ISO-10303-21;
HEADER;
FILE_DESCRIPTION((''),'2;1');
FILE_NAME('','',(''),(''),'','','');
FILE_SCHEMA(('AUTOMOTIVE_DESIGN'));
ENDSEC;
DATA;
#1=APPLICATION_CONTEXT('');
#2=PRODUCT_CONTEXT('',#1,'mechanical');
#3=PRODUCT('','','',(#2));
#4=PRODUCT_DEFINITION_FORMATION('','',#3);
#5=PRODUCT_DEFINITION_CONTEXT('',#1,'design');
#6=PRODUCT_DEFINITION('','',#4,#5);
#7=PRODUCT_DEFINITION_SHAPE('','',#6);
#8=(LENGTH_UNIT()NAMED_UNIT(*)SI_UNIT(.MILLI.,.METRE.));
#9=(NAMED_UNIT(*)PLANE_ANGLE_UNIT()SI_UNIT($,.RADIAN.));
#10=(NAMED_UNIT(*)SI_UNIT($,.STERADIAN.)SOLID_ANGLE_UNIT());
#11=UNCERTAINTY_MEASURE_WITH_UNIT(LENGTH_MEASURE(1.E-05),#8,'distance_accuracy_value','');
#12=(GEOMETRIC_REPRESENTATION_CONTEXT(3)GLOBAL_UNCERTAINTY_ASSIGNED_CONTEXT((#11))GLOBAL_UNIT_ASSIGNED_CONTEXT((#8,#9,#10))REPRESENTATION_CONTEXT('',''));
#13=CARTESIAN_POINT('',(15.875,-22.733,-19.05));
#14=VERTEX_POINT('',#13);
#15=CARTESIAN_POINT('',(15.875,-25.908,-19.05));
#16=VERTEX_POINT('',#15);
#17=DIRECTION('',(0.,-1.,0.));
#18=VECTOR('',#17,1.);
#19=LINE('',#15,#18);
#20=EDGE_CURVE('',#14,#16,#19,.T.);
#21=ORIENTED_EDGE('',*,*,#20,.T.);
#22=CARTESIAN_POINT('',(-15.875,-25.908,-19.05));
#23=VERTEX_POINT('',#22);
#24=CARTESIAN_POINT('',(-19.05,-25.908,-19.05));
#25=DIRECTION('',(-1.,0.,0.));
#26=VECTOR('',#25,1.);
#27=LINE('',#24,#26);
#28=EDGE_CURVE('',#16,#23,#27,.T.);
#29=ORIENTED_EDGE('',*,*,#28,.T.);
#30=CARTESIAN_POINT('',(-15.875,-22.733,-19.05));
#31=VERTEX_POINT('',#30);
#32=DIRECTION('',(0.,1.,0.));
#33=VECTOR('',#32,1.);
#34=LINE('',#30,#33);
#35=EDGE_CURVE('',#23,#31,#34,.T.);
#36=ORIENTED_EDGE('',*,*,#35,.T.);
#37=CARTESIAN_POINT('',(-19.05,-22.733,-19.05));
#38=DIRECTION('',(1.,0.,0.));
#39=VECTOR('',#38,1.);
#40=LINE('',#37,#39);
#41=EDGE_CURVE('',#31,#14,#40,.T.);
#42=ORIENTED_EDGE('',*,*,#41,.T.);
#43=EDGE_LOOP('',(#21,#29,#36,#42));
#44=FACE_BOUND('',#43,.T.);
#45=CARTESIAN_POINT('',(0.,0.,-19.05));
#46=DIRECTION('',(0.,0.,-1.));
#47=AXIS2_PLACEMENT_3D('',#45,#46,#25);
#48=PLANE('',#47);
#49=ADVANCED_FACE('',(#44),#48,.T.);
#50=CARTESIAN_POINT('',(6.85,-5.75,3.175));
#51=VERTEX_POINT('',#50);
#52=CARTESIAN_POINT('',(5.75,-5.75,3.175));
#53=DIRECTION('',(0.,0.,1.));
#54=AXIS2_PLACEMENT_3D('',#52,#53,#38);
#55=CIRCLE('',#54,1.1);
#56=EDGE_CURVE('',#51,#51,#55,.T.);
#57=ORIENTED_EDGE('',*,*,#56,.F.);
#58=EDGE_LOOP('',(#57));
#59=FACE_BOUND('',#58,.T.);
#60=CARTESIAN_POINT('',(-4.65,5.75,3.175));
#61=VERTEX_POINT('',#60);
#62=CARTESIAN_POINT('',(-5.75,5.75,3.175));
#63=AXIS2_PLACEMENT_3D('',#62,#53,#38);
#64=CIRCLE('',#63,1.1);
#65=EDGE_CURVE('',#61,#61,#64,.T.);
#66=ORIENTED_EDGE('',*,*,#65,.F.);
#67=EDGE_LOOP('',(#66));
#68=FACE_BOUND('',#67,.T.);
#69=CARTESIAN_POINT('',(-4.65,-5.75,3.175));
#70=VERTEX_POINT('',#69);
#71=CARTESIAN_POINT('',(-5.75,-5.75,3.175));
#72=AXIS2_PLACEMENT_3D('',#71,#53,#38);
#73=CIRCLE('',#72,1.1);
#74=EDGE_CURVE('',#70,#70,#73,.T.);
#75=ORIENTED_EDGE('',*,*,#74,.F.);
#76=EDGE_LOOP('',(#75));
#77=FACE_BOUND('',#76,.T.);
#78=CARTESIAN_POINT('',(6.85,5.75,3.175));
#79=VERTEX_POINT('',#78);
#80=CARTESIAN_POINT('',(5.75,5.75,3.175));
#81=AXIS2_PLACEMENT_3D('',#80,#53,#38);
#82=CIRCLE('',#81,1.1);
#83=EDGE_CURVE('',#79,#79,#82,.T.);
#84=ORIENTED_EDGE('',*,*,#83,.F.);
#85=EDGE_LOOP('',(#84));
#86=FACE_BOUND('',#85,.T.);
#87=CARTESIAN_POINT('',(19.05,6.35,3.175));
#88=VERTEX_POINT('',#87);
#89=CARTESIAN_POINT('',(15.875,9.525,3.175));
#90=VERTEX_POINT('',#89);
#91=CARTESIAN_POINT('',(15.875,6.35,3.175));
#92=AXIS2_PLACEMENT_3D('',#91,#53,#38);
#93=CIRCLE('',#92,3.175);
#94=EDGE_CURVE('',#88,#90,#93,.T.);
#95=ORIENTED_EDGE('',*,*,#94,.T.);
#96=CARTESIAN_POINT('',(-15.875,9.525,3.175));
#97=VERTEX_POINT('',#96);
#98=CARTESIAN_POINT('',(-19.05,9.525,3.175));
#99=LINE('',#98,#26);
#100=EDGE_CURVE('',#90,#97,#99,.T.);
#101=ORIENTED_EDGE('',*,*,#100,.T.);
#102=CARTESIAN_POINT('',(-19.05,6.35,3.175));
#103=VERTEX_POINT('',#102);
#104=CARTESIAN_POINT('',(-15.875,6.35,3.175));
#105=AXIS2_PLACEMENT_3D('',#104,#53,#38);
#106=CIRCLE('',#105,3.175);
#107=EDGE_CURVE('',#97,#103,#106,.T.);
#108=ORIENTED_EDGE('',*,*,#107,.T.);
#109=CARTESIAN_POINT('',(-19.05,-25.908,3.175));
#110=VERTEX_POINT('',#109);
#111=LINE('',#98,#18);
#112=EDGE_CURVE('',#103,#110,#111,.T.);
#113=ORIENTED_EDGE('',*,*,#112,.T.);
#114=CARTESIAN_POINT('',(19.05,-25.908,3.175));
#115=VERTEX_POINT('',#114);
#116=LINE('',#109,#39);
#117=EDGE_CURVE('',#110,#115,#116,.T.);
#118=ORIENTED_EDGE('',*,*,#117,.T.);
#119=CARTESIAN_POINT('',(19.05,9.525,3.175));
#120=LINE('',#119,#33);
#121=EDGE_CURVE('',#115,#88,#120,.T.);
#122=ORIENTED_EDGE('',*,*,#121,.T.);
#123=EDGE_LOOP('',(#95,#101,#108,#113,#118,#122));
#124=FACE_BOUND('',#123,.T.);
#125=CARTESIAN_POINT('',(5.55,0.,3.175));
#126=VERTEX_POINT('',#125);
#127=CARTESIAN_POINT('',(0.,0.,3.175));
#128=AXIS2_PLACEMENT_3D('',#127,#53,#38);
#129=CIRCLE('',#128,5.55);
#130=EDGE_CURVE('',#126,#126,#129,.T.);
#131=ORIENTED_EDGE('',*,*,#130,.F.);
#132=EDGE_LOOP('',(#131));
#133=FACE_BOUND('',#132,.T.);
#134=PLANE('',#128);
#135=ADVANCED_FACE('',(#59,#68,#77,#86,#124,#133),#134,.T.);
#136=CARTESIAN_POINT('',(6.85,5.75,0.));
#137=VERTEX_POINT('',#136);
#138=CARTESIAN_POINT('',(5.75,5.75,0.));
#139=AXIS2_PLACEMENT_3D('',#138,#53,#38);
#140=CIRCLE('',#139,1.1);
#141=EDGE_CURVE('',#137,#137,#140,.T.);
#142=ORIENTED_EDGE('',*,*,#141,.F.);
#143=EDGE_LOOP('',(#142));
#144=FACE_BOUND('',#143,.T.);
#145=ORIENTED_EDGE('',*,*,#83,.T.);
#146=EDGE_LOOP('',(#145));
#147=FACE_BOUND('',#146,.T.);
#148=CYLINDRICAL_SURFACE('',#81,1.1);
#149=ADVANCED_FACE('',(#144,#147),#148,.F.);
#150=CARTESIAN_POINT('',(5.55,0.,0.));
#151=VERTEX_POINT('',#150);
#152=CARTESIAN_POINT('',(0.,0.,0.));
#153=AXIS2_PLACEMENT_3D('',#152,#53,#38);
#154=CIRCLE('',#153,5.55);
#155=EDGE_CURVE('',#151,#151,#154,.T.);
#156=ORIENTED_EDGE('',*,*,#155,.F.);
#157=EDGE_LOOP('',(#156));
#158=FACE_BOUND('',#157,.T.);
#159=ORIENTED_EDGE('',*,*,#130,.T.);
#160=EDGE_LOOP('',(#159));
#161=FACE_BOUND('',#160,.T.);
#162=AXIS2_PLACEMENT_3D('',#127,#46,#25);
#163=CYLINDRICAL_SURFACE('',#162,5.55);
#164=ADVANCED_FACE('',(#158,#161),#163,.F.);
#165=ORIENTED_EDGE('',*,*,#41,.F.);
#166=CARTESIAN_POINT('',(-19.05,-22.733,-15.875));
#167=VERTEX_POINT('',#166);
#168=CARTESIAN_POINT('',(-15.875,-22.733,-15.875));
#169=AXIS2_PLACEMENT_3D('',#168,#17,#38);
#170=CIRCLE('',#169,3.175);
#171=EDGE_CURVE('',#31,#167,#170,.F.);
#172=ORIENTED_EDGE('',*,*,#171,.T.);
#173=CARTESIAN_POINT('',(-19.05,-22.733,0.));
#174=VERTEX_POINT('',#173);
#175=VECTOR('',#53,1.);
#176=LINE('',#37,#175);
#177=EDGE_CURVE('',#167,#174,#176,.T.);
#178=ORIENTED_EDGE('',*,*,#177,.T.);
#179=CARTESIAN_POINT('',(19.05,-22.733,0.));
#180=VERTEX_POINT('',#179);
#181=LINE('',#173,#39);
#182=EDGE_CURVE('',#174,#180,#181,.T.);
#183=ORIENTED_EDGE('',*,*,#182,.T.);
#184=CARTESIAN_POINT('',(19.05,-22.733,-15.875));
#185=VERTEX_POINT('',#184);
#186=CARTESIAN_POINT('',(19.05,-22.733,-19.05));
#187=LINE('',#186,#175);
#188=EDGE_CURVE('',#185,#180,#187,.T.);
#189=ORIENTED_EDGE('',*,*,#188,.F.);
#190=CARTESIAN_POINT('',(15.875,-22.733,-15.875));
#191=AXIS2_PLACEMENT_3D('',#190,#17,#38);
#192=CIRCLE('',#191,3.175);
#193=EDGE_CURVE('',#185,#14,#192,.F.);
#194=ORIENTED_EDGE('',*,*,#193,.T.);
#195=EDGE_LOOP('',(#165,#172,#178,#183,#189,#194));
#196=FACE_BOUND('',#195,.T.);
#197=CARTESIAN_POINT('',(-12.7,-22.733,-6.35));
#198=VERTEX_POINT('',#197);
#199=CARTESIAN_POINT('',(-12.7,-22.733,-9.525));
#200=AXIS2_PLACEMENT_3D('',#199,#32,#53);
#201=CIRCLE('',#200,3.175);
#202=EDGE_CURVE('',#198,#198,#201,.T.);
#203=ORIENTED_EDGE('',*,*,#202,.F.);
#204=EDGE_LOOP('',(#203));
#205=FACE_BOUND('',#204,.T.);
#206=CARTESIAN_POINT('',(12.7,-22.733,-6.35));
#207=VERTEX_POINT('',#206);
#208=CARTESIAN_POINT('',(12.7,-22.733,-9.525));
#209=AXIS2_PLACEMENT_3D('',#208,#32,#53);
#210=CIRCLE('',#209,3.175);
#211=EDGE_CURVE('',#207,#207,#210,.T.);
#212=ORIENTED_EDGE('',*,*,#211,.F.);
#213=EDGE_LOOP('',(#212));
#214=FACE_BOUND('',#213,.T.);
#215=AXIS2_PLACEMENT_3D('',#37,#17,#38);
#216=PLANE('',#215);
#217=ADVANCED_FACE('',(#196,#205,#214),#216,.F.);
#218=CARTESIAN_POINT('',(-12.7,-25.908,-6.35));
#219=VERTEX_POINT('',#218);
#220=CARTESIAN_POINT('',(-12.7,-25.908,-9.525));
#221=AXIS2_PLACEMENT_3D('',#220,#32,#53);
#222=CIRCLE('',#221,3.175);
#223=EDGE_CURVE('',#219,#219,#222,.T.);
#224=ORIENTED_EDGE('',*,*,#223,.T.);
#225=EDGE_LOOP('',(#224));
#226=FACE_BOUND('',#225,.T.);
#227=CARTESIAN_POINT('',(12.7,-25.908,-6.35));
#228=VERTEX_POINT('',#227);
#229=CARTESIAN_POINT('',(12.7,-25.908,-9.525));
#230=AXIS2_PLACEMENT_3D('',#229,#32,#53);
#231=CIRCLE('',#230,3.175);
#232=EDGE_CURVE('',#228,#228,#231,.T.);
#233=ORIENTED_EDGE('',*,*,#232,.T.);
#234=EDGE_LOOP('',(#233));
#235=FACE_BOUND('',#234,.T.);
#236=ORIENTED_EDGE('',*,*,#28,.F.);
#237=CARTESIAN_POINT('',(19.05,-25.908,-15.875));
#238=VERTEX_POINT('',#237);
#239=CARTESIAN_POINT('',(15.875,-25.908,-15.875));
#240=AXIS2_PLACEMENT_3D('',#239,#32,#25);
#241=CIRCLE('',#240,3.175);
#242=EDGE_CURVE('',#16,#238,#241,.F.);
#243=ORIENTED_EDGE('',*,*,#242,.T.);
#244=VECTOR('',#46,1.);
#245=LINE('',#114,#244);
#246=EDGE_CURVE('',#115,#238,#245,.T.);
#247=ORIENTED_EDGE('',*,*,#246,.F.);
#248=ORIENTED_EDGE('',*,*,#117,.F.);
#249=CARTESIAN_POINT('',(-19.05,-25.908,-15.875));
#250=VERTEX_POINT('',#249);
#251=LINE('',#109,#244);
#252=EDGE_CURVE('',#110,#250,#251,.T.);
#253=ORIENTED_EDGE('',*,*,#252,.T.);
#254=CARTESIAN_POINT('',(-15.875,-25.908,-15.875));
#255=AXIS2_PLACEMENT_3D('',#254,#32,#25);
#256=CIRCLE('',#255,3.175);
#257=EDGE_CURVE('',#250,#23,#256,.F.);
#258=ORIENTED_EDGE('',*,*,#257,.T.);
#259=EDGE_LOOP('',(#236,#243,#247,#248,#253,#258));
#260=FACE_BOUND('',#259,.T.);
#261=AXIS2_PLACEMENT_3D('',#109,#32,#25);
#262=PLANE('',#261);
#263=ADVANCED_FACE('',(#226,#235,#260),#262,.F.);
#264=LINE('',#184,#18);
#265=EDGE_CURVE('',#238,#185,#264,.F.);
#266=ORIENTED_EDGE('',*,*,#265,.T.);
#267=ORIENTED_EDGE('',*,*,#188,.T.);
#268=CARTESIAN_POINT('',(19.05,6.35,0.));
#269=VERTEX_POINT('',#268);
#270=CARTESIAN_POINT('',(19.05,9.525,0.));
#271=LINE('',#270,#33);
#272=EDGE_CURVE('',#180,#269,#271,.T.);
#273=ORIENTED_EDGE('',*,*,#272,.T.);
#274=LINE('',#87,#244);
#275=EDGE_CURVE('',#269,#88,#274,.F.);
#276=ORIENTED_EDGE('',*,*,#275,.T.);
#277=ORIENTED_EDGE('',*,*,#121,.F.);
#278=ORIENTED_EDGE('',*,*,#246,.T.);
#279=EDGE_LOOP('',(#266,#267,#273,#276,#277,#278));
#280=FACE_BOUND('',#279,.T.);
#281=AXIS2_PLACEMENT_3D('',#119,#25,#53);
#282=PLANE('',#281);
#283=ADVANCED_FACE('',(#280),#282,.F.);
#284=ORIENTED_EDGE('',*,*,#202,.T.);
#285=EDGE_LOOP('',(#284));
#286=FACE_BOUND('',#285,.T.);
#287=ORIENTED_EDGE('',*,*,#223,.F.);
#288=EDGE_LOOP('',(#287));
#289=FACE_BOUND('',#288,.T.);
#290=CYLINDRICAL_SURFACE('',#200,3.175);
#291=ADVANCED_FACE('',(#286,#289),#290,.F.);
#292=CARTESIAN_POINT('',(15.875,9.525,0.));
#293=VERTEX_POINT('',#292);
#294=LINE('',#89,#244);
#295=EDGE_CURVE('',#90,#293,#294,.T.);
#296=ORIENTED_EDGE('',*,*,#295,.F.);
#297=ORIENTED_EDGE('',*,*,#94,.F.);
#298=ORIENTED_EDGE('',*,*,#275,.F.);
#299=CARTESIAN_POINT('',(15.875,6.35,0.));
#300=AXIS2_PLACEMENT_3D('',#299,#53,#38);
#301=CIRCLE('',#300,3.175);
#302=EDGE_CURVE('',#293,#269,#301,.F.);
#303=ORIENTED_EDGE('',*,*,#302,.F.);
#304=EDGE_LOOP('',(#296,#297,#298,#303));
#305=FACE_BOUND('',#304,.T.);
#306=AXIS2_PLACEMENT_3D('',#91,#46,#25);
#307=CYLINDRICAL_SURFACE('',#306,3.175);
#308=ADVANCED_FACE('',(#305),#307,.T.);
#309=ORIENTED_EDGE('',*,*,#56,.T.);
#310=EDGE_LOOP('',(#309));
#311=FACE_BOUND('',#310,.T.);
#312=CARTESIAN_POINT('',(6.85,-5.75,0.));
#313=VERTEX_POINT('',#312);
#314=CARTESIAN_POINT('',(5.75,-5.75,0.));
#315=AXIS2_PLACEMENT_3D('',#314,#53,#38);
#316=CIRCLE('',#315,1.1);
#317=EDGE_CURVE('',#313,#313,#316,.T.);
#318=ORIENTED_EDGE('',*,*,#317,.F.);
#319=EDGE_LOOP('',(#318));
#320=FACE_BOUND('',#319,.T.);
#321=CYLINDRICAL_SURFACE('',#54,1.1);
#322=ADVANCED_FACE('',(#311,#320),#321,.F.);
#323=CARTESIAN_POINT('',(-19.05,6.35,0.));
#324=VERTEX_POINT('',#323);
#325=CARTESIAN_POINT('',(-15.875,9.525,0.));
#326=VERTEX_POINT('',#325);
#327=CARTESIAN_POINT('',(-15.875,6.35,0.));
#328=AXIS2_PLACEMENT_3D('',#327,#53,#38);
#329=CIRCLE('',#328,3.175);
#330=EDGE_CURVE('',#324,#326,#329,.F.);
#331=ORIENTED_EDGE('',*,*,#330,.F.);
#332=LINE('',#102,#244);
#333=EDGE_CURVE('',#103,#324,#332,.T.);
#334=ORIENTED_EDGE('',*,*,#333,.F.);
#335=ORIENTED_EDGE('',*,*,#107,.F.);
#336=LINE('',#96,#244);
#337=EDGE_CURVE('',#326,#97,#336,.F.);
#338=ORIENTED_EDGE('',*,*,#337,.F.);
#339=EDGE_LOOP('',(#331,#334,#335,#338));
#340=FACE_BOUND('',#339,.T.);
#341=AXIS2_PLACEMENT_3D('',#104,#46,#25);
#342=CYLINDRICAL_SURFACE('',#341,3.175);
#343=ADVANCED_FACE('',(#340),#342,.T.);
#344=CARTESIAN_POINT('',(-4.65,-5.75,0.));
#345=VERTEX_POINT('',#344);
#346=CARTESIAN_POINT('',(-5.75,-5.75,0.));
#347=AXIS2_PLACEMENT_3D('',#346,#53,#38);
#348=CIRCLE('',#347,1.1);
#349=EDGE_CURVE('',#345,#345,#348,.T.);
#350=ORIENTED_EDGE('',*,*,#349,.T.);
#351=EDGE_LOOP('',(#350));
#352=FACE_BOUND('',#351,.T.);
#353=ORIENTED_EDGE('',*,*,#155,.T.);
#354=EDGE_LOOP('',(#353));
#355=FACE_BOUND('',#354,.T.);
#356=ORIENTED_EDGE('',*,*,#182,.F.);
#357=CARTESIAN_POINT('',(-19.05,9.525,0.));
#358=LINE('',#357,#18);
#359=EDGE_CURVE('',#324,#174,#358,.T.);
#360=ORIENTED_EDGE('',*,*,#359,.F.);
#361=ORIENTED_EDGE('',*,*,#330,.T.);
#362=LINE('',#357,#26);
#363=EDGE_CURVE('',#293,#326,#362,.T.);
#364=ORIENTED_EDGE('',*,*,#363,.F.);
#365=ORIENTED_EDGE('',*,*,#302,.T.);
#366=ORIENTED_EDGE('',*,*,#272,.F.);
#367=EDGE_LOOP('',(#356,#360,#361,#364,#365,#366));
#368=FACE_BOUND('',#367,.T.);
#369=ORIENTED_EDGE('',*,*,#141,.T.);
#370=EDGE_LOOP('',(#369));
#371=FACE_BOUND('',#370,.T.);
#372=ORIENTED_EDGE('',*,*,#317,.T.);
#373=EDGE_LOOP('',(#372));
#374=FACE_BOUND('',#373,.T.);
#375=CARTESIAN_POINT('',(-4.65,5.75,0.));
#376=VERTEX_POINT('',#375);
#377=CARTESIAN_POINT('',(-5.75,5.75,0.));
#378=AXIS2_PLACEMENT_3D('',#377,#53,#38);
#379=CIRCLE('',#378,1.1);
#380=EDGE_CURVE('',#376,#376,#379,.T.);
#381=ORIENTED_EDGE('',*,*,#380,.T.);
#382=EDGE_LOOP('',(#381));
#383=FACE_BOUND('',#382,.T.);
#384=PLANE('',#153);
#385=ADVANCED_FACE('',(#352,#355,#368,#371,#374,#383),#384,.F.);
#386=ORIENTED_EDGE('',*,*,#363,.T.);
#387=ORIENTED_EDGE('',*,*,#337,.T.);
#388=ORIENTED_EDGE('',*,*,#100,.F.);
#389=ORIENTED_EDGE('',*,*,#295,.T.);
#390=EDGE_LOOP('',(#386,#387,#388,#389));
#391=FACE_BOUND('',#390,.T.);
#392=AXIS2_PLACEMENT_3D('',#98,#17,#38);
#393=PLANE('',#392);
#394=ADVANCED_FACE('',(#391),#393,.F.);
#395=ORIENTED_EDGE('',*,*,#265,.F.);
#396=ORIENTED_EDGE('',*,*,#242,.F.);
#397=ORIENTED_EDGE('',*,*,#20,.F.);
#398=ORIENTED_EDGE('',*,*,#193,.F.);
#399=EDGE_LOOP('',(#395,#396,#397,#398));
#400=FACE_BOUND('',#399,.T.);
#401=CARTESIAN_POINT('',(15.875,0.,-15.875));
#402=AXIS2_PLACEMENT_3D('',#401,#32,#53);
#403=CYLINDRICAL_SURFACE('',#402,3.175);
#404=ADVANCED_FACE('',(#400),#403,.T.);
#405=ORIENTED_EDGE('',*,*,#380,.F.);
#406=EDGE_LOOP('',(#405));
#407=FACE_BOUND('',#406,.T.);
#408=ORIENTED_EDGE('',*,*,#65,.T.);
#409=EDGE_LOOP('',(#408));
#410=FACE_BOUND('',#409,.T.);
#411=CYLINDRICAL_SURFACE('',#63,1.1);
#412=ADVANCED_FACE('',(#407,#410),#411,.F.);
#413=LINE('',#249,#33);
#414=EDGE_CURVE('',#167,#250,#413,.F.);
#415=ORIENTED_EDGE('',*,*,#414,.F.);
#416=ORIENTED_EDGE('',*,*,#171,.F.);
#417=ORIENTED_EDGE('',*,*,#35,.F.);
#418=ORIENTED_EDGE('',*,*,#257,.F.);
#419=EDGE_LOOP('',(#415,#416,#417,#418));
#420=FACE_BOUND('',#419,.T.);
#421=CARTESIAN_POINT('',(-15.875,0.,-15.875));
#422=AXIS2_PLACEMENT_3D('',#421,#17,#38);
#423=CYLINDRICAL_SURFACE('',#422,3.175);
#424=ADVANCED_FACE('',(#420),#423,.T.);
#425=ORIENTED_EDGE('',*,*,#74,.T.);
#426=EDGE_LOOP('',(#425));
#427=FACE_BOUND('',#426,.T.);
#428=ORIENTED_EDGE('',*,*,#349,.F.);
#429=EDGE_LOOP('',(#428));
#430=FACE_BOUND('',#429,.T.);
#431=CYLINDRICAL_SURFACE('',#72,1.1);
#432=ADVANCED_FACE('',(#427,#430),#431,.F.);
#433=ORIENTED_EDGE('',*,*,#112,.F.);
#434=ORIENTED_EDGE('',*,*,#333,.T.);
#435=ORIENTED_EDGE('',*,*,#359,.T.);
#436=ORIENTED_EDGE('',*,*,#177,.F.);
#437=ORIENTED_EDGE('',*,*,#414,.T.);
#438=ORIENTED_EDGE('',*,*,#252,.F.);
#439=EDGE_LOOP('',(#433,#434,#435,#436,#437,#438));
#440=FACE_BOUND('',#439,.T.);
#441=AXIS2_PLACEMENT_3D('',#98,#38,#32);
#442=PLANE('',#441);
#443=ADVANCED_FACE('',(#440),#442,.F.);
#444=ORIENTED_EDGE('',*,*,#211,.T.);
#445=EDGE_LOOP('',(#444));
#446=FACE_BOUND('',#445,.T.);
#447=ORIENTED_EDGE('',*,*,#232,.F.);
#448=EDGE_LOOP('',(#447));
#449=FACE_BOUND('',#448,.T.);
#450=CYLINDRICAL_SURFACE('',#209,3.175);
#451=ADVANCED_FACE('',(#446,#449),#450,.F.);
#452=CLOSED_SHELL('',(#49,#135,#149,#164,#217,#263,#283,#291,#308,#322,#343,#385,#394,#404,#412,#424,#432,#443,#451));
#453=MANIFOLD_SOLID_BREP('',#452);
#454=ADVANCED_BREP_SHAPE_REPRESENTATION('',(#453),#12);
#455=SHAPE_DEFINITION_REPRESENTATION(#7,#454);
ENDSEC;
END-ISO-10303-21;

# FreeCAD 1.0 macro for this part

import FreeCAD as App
import Part
import Sketcher
from FreeCAD import Vector
Q = App.Units.Quantity


def edges_at(feature, points):
    """Names of the edges that pass closest to the given points."""
    edges = feature.Shape.Edges
    near = lambda p: min(range(len(edges)), key=lambda i: edges[i].distToShape(Part.Vertex(*p))[0])
    return sorted({f"Edge{near(p) + 1}" for p in points})


def add_polygon(sketch, points):
    """Adds a closed chain of lines whose ends are joined by coincident constraints."""
    first, n = sketch.GeometryCount, len(points)
    for a, b in zip(points, points[1:] + points[:1]):
        sketch.addGeometry(Part.LineSegment(App.Vector(*a, 0), App.Vector(*b, 0)), False)
    for i in range(n):
        sketch.addConstraint(Sketcher.Constraint("Coincident", first + i, 2, first + (i + 1) % n, 1))

doc = App.newDocument("Part")
body = doc.addObject("PartDesign::Body", "Body")

# Sketch on XY plane
sketch1 = body.newObject("Sketcher::SketchObject", "Sketch")
sketch1.AttachmentSupport = (doc.getObject("XY_Plane"), [""])
sketch1.MapMode = "FlatFace"
add_polygon(sketch1, [(-19, 10), (-19, -26), (19, -26), (19, 10)])  # lines 0-3
sketch1.addGeometry(Part.Circle(Vector(0, 0, 0), Vector(0, 0, 1), 6), False)  # 4
sketch1.addConstraint(Sketcher.Constraint("Vertical", 0))
sketch1.addConstraint(Sketcher.Constraint("Horizontal", 1))
sketch1.addConstraint(Sketcher.Constraint("Vertical", 2))
sketch1.addConstraint(Sketcher.Constraint("Horizontal", 3))
sketch1.addConstraint(Sketcher.Constraint("Coincident", 4, 3, -1, 1))
sketch1.addConstraint(Sketcher.Constraint("DistanceX", 1, 1, 1, 2, Q("1.5 in")))
sketch1.addConstraint(Sketcher.Constraint("Diameter", 4, 11.1))
sketch1.addConstraint(Sketcher.Constraint("DistanceY", 0, 2, 0, 1, Q("1.395 in")))
sketch1.addConstraint(Sketcher.Constraint("DistanceX", 0, 2, -1, 1, Q("0.75 in")))
sketch1.addConstraint(Sketcher.Constraint("DistanceY", 0, 2, -1, 1, Q("1.02 in")))
pad1 = body.newObject("PartDesign::Pad", "Pad")
pad1.Profile = sketch1
pad1.Length = Q("0.125 in")

# Sketch on XY plane
sketch2 = body.newObject("Sketcher::SketchObject", "Sketch001")
sketch2.AttachmentSupport = (doc.getObject("XY_Plane"), [""])
sketch2.MapMode = "FlatFace"
add_polygon(sketch2, [(19.1, -22.7), (19.1, -25.9), (-19.1, -25.9), (-19.1, -22.7)])  # lines 0-3
sketch2.addConstraint(Sketcher.Constraint("Vertical", 0))
sketch2.addConstraint(Sketcher.Constraint("Horizontal", 1))
sketch2.addConstraint(Sketcher.Constraint("Vertical", 2))
sketch2.addConstraint(Sketcher.Constraint("Horizontal", 3))
sketch2.addConstraint(Sketcher.Constraint("DistanceX", 1, 2, 1, 1, Q("1.5 in")))
sketch2.addConstraint(Sketcher.Constraint("DistanceY", 0, 2, 0, 1, Q("0.125 in")))
sketch2.addConstraint(Sketcher.Constraint("DistanceX", -1, 1, 0, 2, Q("0.75 in")))
sketch2.addConstraint(Sketcher.Constraint("DistanceY", 0, 2, -1, 1, Q("1.02 in")))
pad2 = body.newObject("PartDesign::Pad", "Pad001")
pad2.Profile = sketch2
pad2.Length = Q("0.75 in")
pad2.Reversed = True
doc.recompute()

fillet = body.newObject("PartDesign::Fillet", "Fillet")
fillet.Base = (pad2, edges_at(pad2, [
    (-19.05, -24.32, -19.05),
    (19.05, -24.32, -19.05),
    (-19.05, 9.525, 1.587),
    (19.05, 9.525, 1.587),
]))
fillet.Radius = Q("0.125 in")

# Sketch on XY plane
sketch3 = body.newObject("Sketcher::SketchObject", "Sketch002")
sketch3.AttachmentSupport = (doc.getObject("XY_Plane"), [""])
sketch3.MapMode = "FlatFace"
sketch3.AttachmentOffset = App.Placement(Vector(0, 0, 0.125 * 25.4), App.Rotation())
sketch3.addGeometry(Part.Circle(Vector(5.8, 5.8, 0), Vector(0, 0, 1), 1.1), False)
sketch3.addGeometry(Part.Circle(Vector(-5.8, 5.8, 0), Vector(0, 0, 1), 1.1), False)
sketch3.addGeometry(Part.Circle(Vector(5.8, -5.8, 0), Vector(0, 0, 1), 1.1), False)
sketch3.addGeometry(Part.Circle(Vector(-5.8, -5.8, 0), Vector(0, 0, 1), 1.1), False)
sketch3.addConstraint(Sketcher.Constraint("Equal", 0, 1))
sketch3.addConstraint(Sketcher.Constraint("Equal", 1, 2))
sketch3.addConstraint(Sketcher.Constraint("Equal", 2, 3))
sketch3.addConstraint(Sketcher.Constraint("Symmetric", 1, 3, 2, 3, -1, 1))
sketch3.addConstraint(Sketcher.Constraint("Symmetric", 0, 3, 3, 3, -1, 1))
sketch3.addConstraint(Sketcher.Constraint("Symmetric", 0, 3, 1, 3, -2))
sketch3.addConstraint(Sketcher.Constraint("Diameter", 0, 2.2))
sketch3.addConstraint(Sketcher.Constraint("DistanceX", -1, 1, 0, 3, 5.75))
sketch3.addConstraint(Sketcher.Constraint("DistanceY", -1, 1, 0, 3, 5.75))
doc.recompute()
hole = body.newObject("PartDesign::Hole", "Hole")
hole.Profile = sketch3
hole.ThreadType = "None"
hole.Diameter = 2.2
hole.DepthType = "ThroughAll"

# Sketch on XZ plane
sketch4 = body.newObject("Sketcher::SketchObject", "Sketch003")
sketch4.AttachmentSupport = (doc.getObject("XZ_Plane"), [""])
sketch4.MapMode = "FlatFace"
sketch4.AttachmentOffset = App.Placement(Vector(0, 0, 0.895 * 25.4), App.Rotation())
sketch4.addGeometry(Part.Circle(Vector(-12.7, -9.5, 0), Vector(0, 0, 1), 3.2), False)
sketch4.addGeometry(Part.Circle(Vector(12.7, -9.5, 0), Vector(0, 0, 1), 3.2), False)
sketch4.addConstraint(Sketcher.Constraint("Equal", 0, 1))
sketch4.addConstraint(Sketcher.Constraint("Symmetric", 0, 3, 1, 3, -2))
sketch4.addConstraint(Sketcher.Constraint("Diameter", 0, Q("0.25 in")))
sketch4.addConstraint(Sketcher.Constraint("DistanceX", 0, 3, 1, 3, Q("1 in")))
sketch4.addConstraint(Sketcher.Constraint("DistanceY", 0, 3, -1, 1, Q("0.375 in")))
doc.recompute()
hole2 = body.newObject("PartDesign::Hole", "Hole001")
hole2.Profile = sketch4
hole2.ThreadType = "None"
hole2.Diameter = Q("0.25 in")
hole2.DepthType = "ThroughAll"
hole2.Reversed = True

doc.recompute()
